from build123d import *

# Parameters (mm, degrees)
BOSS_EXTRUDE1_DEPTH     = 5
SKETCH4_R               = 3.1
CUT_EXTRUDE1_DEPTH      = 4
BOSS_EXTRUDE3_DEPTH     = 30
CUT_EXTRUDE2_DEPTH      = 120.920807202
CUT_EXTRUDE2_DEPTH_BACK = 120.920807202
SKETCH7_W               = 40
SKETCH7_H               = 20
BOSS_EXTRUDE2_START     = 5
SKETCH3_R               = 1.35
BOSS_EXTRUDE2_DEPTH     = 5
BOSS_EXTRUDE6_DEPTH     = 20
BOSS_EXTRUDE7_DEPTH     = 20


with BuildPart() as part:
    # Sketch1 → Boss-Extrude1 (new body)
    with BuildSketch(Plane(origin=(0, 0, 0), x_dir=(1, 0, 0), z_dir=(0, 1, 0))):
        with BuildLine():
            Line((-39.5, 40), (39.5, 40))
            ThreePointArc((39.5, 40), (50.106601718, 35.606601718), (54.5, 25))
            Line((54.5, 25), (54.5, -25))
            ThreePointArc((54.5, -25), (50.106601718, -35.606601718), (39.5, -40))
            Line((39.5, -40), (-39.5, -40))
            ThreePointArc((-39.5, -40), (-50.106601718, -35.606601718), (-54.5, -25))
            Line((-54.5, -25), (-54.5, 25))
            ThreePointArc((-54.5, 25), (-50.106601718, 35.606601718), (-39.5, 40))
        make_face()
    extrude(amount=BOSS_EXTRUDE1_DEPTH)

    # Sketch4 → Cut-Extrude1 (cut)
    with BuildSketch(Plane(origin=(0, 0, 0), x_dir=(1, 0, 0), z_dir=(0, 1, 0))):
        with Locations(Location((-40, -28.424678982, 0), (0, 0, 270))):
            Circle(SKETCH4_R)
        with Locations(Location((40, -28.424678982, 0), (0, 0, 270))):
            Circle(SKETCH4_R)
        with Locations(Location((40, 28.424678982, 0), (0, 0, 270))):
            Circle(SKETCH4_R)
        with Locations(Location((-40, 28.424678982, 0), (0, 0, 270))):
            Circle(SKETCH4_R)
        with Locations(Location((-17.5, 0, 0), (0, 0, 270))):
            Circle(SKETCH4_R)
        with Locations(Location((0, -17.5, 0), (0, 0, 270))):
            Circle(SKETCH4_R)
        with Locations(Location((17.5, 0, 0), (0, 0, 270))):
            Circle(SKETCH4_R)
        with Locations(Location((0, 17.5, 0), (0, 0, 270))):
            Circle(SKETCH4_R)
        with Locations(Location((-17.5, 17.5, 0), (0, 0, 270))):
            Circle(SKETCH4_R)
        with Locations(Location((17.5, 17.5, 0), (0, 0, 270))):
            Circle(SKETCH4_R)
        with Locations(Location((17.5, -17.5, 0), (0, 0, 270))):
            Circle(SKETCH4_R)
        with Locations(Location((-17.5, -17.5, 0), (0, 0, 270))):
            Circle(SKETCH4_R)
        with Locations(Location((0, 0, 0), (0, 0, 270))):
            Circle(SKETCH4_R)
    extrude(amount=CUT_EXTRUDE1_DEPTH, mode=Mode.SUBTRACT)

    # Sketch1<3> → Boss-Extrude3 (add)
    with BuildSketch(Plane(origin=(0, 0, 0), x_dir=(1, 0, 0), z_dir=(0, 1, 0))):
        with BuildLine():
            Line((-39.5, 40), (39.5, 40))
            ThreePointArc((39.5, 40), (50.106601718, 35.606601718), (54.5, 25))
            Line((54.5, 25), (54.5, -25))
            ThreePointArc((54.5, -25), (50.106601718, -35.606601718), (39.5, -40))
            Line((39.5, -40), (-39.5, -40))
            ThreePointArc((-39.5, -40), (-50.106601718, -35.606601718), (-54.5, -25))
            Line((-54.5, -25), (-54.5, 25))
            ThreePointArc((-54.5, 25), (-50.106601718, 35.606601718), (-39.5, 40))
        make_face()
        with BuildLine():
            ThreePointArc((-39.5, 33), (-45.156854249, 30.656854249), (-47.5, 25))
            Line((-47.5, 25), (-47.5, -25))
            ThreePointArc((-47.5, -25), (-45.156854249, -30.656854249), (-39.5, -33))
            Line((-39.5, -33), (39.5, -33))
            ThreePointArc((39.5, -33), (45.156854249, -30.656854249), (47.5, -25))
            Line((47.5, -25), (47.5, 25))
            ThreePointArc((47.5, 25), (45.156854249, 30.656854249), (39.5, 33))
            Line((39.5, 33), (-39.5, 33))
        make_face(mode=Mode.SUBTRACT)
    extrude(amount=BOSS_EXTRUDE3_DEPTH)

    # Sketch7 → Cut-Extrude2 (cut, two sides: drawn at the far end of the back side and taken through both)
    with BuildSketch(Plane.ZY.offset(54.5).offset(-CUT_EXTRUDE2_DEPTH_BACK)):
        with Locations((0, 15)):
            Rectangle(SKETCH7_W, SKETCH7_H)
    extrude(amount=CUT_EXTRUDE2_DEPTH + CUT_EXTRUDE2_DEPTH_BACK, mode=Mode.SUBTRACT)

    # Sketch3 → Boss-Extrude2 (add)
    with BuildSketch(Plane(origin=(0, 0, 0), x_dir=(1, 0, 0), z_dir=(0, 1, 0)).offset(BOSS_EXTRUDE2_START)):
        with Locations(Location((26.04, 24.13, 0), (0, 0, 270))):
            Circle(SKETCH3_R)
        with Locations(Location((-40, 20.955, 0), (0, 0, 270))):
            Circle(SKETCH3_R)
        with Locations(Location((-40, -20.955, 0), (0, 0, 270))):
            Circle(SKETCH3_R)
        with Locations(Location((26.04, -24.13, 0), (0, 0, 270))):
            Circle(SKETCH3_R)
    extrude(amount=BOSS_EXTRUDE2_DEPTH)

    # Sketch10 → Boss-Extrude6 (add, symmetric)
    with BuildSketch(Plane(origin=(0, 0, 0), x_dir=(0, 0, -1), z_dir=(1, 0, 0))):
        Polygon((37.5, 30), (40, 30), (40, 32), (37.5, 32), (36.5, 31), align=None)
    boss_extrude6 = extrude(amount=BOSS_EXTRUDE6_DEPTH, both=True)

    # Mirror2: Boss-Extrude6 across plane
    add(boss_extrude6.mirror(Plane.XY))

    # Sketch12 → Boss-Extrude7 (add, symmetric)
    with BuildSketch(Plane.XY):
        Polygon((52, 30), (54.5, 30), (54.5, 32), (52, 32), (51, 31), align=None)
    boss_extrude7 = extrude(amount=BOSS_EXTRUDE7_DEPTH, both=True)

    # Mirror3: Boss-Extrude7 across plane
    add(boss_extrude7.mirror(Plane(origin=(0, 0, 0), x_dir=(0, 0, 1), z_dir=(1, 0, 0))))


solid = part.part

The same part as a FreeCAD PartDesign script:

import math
import FreeCAD as App
import Part
import Sketcher
from FreeCAD import Vector


def add_polygon(sketch, points):
    """Adds a closed chain of lines whose ends are joined by coincident constraints."""
    first, n = sketch.GeometryCount, len(points)
    for a, b in zip(points, points[1:] + points[:1]):
        sketch.addGeometry(Part.LineSegment(App.Vector(*a, 0), App.Vector(*b, 0)), False)
    for i in range(n):
        sketch.addConstraint(Sketcher.Constraint("Coincident", first + i, 2, first + (i + 1) % n, 1))

doc = App.newDocument("Part")
params = doc.addObject("Spreadsheet::Sheet", "Params")
for row, (alias, value) in enumerate([
    ("sketch1_radius", "15 mm"),
    ("sketch1_width", "79 mm"),
    ("sketch1_height", "50 mm"),
    ("pad1_length", "5 mm"),
    ("sketch2_diameter", "6.2 mm"),
    ("pocket1_length", "4 mm"),
    ("sketch3_radius", "15 mm"),
    ("sketch3_radius2", "8 mm"),
    ("sketch3_width", "79 mm"),
    ("sketch3_height", "50 mm"),
    ("pad2_length", "30 mm"),
    ("sketch4_width", "20 mm"),
    ("sketch4_height", "40 mm"),
    ("sketch5_diameter", "2.7 mm"),
    ("pad3_length", "5 mm"),
    ("sketch6_width", "2 mm"),
    ("sketch6_height", "2.5 mm"),
    ("pad4_length", "40 mm"),
    ("sketch7_height", "2 mm"),
    ("sketch7_width", "2.5 mm"),
    ("pad5_length", "40 mm"),
], start=1):
    params.set(f"A{row}", alias)
    params.set(f"B{row}", "=" + value)
    params.setAlias(f"B{row}", alias)

body = doc.addObject("PartDesign::Body", "Body")

# Sketch on XZ plane
sketch1 = doc.addObject("Sketcher::SketchObject", "Sketch")
body.addObject(sketch1)
sketch1.AttachmentSupport = (doc.XZ_Plane, [""])
sketch1.MapMode = "FlatFace"
sketch1.addGeometry([
    Part.LineSegment(Vector(40, -40, 0), Vector(-40, -40, 0)),  # 0
    Part.ArcOfCircle(Part.Circle(Vector(-40, -25, 0), Vector(0, 0, 1), 15), math.radians(180), math.radians(270)),  # 1
    Part.LineSegment(Vector(-54, -25, 0), Vector(-54, 25, 0)),  # 2
    Part.ArcOfCircle(Part.Circle(Vector(-40, 25, 0), Vector(0, 0, 1), 15), math.radians(90), math.radians(180)),  # 3
    Part.LineSegment(Vector(-40, 40, 0), Vector(40, 40, 0)),  # 4
    Part.ArcOfCircle(Part.Circle(Vector(40, 25, 0), Vector(0, 0, 1), 15), math.radians(0), math.radians(90)),  # 5
    Part.LineSegment(Vector(54, 25, 0), Vector(54, -25, 0)),  # 6
    Part.ArcOfCircle(Part.Circle(Vector(40, -25, 0), Vector(0, 0, 1), 15), math.radians(-90), math.radians(0)),  # 7
], False)
sketch1.addConstraint([
    Sketcher.Constraint("Tangent", 0, 2, 1, 2),
    Sketcher.Constraint("Tangent", 1, 1, 2, 1),
    Sketcher.Constraint("Tangent", 2, 2, 3, 2),
    Sketcher.Constraint("Tangent", 3, 1, 4, 1),
    Sketcher.Constraint("Tangent", 4, 2, 5, 2),
    Sketcher.Constraint("Tangent", 5, 1, 6, 1),
    Sketcher.Constraint("Tangent", 6, 2, 7, 2),
    Sketcher.Constraint("Tangent", 7, 1, 0, 1),
    Sketcher.Constraint("Horizontal", 0),
    Sketcher.Constraint("Vertical", 2),
    Sketcher.Constraint("Horizontal", 4),
    Sketcher.Constraint("Vertical", 6),
    Sketcher.Constraint("Equal", 1, 3),
    Sketcher.Constraint("Equal", 3, 5),
    Sketcher.Constraint("Equal", 5, 7),
    Sketcher.Constraint("Symmetric", 1, 3, 5, 3, -1, 1),
    Sketcher.Constraint("Radius", 1, 15.0),
    Sketcher.Constraint("DistanceX", 0, 2, 0, 1, 79.0),
    Sketcher.Constraint("DistanceY", 2, 1, 2, 2, 50.0),
])
sketch1.setExpression("Constraints[16]", "Params.sketch1_radius")
sketch1.setExpression("Constraints[17]", "Params.sketch1_width")
sketch1.setExpression("Constraints[18]", "Params.sketch1_height")
pad1 = doc.addObject("PartDesign::Pad", "Pad")
body.addObject(pad1)
pad1.Profile = sketch1
pad1.setExpression("Length", "Params.pad1_length")
pad1.Reversed = True

# Sketch on XZ plane
sketch2 = doc.addObject("Sketcher::SketchObject", "Sketch001")
body.addObject(sketch2)
sketch2.AttachmentSupport = (doc.XZ_Plane, [""])
sketch2.MapMode = "FlatFace"
sketch2.addGeometry([
    Part.Circle(Vector(-40, 28.4, 0), Vector(0, 0, 1), 3.1),  # 0
    Part.Circle(Vector(40, 28.4, 0), Vector(0, 0, 1), 3.1),  # 1
    Part.Circle(Vector(40, -28.4, 0), Vector(0, 0, 1), 3.1),  # 2
    Part.Circle(Vector(-40, -28.4, 0), Vector(0, 0, 1), 3.1),  # 3
    Part.Circle(Vector(-17.5, 0, 0), Vector(0, 0, 1), 3.1),  # 4
    Part.Circle(Vector(0, 17.5, 0), Vector(0, 0, 1), 3.1),  # 5
    Part.Circle(Vector(17.5, 0, 0), Vector(0, 0, 1), 3.1),  # 6
    Part.Circle(Vector(0, -17.5, 0), Vector(0, 0, 1), 3.1),  # 7
    Part.Circle(Vector(-17.5, -17.5, 0), Vector(0, 0, 1), 3.1),  # 8
    Part.Circle(Vector(17.5, -17.5, 0), Vector(0, 0, 1), 3.1),  # 9
    Part.Circle(Vector(17.5, 17.5, 0), Vector(0, 0, 1), 3.1),  # 10
    Part.Circle(Vector(-17.5, 17.5, 0), Vector(0, 0, 1), 3.1),  # 11
    Part.Circle(Vector(0, 0, 0), Vector(0, 0, 1), 3.1),  # 12
], False)
sketch2.addConstraint([
    Sketcher.Constraint("Coincident", 12, 3, -1, 1),
    Sketcher.Constraint("Equal", 0, 1),
    Sketcher.Constraint("Equal", 1, 2),
    Sketcher.Constraint("Equal", 2, 3),
    Sketcher.Constraint("Equal", 3, 4),
    Sketcher.Constraint("Equal", 4, 5),
    Sketcher.Constraint("Equal", 5, 6),
    Sketcher.Constraint("Equal", 6, 7),
    Sketcher.Constraint("Equal", 7, 8),
    Sketcher.Constraint("Equal", 8, 9),
    Sketcher.Constraint("Equal", 9, 10),
    Sketcher.Constraint("Equal", 10, 11),
    Sketcher.Constraint("Equal", 11, 12),
    Sketcher.Constraint("Symmetric", 0, 3, 2, 3, -1, 1),
    Sketcher.Constraint("Symmetric", 1, 3, 3, 3, -1, 1),
    Sketcher.Constraint("Symmetric", 4, 3, 6, 3, -1, 1),
    Sketcher.Constraint("Symmetric", 5, 3, 7, 3, -1, 1),
    Sketcher.Constraint("Symmetric", 8, 3, 10, 3, -1, 1),
    Sketcher.Constraint("Symmetric", 9, 3, 11, 3, -1, 1),
    Sketcher.Constraint("Symmetric", 0, 3, 1, 3, -2),
    Sketcher.Constraint("Symmetric", 8, 3, 9, 3, -2),
    Sketcher.Constraint("PointOnObject", 4, 3, -1),
    Sketcher.Constraint("PointOnObject", 5, 3, -2),
    Sketcher.Constraint("Horizontal", 7, 3, 8, 3),
    Sketcher.Constraint("Vertical", 4, 3, 8, 3),
    Sketcher.Constraint("Diameter", 0, 6.2),
    Sketcher.Constraint("DistanceX", 0, 3, -1, 1, 40.0),
    Sketcher.Constraint("DistanceX", 4, 3, 6, 3, 35.0),
    Sketcher.Constraint("DistanceY", 7, 3, 5, 3, 35.0),
    Sketcher.Constraint("DistanceY", -1, 1, 0, 3, 28.424679),
])
sketch2.setExpression("Constraints[25]", "Params.sketch2_diameter")
pocket1 = doc.addObject("PartDesign::Pocket", "Pocket")
body.addObject(pocket1)
pocket1.Profile = sketch2
pocket1.setExpression("Length", "Params.pocket1_length")

# Sketch on XZ plane
sketch3 = doc.addObject("Sketcher::SketchObject", "Sketch002")
body.addObject(sketch3)
sketch3.AttachmentSupport = (doc.XZ_Plane, [""])
sketch3.MapMode = "FlatFace"
sketch3.addGeometry([
    Part.LineSegment(Vector(40, -40, 0), Vector(-40, -40, 0)),  # 0
    Part.ArcOfCircle(Part.Circle(Vector(-40, -25, 0), Vector(0, 0, 1), 15), math.radians(180), math.radians(270)),  # 1
    Part.LineSegment(Vector(-54, -25, 0), Vector(-54, 25, 0)),  # 2
    Part.ArcOfCircle(Part.Circle(Vector(-40, 25, 0), Vector(0, 0, 1), 15), math.radians(90), math.radians(180)),  # 3
    Part.LineSegment(Vector(-40, 40, 0), Vector(40, 40, 0)),  # 4
    Part.ArcOfCircle(Part.Circle(Vector(40, 25, 0), Vector(0, 0, 1), 15), math.radians(0), math.radians(90)),  # 5
    Part.LineSegment(Vector(54, 25, 0), Vector(54, -25, 0)),  # 6
    Part.ArcOfCircle(Part.Circle(Vector(40, -25, 0), Vector(0, 0, 1), 15), math.radians(-90), math.radians(0)),  # 7
    Part.LineSegment(Vector(-40, -33, 0), Vector(40, -33, 0)),  # 8
    Part.ArcOfCircle(Part.Circle(Vector(39, -25, 0), Vector(0, 0, 1), 8), math.radians(-90), math.radians(0)),  # 9
    Part.LineSegment(Vector(48, -25, 0), Vector(48, 25, 0)),  # 10
    Part.ArcOfCircle(Part.Circle(Vector(39, 25, 0), Vector(0, 0, 1), 8), math.radians(0), math.radians(90)),  # 11
    Part.LineSegment(Vector(40, 33, 0), Vector(-40, 33, 0)),  # 12
    Part.ArcOfCircle(Part.Circle(Vector(-39, 25, 0), Vector(0, 0, 1), 8), math.radians(90), math.radians(180)),  # 13
    Part.LineSegment(Vector(-48, 25, 0), Vector(-48, -25, 0)),  # 14
    Part.ArcOfCircle(Part.Circle(Vector(-39, -25, 0), Vector(0, 0, 1), 8), math.radians(-180), math.radians(-90)),  # 15
], False)
sketch3.addConstraint([
    Sketcher.Constraint("Tangent", 0, 2, 1, 2),
    Sketcher.Constraint("Tangent", 1, 1, 2, 1),
    Sketcher.Constraint("Tangent", 2, 2, 3, 2),
    Sketcher.Constraint("Tangent", 3, 1, 4, 1),
    Sketcher.Constraint("Tangent", 4, 2, 5, 2),
    Sketcher.Constraint("Tangent", 5, 1, 6, 1),
    Sketcher.Constraint("Tangent", 6, 2, 7, 2),
    Sketcher.Constraint("Tangent", 7, 1, 0, 1),
    Sketcher.Constraint("Tangent", 8, 2, 9, 1),
    Sketcher.Constraint("Tangent", 9, 2, 10, 1),
    Sketcher.Constraint("Tangent", 10, 2, 11, 1),
    Sketcher.Constraint("Tangent", 11, 2, 12, 1),
    Sketcher.Constraint("Tangent", 12, 2, 13, 1),
    Sketcher.Constraint("Tangent", 13, 2, 14, 1),
    Sketcher.Constraint("Tangent", 14, 2, 15, 1),
    Sketcher.Constraint("Tangent", 15, 2, 8, 1),
    Sketcher.Constraint("Horizontal", 0),
    Sketcher.Constraint("Vertical", 2),
    Sketcher.Constraint("Horizontal", 4),
    Sketcher.Constraint("Vertical", 6),
    Sketcher.Constraint("Horizontal", 8),
    Sketcher.Constraint("Vertical", 10),
    Sketcher.Constraint("Horizontal", 12),
    Sketcher.Constraint("Vertical", 14),
    Sketcher.Constraint("Coincident", 9, 3, 7, 3),
    Sketcher.Constraint("Coincident", 11, 3, 5, 3),
    Sketcher.Constraint("Coincident", 13, 3, 3, 3),
    Sketcher.Constraint("Equal", 1, 3),
    Sketcher.Constraint("Equal", 3, 5),
    Sketcher.Constraint("Equal", 5, 7),
    Sketcher.Constraint("Equal", 13, 15),
    Sketcher.Constraint("Symmetric", 1, 3, 5, 3, -1, 1),
    Sketcher.Constraint("Radius", 1, 15.0),
    Sketcher.Constraint("Radius", 9, 8.0),
    Sketcher.Constraint("DistanceX", 0, 2, 0, 1, 79.0),
    Sketcher.Constraint("DistanceY", 2, 1, 2, 2, 50.0),
])
sketch3.setExpression("Constraints[32]", "Params.sketch3_radius")
sketch3.setExpression("Constraints[33]", "Params.sketch3_radius2")
sketch3.setExpression("Constraints[34]", "Params.sketch3_width")
sketch3.setExpression("Constraints[35]", "Params.sketch3_height")
pad2 = doc.addObject("PartDesign::Pad", "Pad001")
body.addObject(pad2)
pad2.Profile = sketch3
pad2.setExpression("Length", "Params.pad2_length")
pad2.Reversed = True

# Sketch on YZ plane
sketch4 = doc.addObject("Sketcher::SketchObject", "Sketch003")
body.addObject(sketch4)
sketch4.AttachmentSupport = (doc.YZ_Plane, [""])
sketch4.MapMode = "FlatFace"
sketch4.AttachmentOffset = App.Placement(Vector(0, 0, -54.5), App.Rotation())
add_polygon(sketch4, [(25, -20), (5, -20), (5, 20), (25, 20)])  # lines 0-3
sketch4.addConstraint([
    Sketcher.Constraint("Horizontal", 0),
    Sketcher.Constraint("Vertical", 1),
    Sketcher.Constraint("Horizontal", 2),
    Sketcher.Constraint("Vertical", 3),
    Sketcher.Constraint("DistanceX", 0, 2, 0, 1, 20.0),
    Sketcher.Constraint("DistanceY", 1, 1, 1, 2, 40.0),
    Sketcher.Constraint("DistanceX", -1, 1, 0, 2, 5.0),
    Sketcher.Constraint("DistanceY", 0, 2, -1, 1, 20.0),
])
sketch4.setExpression("Constraints[8]", "Params.sketch4_width")
sketch4.setExpression("Constraints[9]", "Params.sketch4_height")
pocket2 = doc.addObject("PartDesign::Pocket", "Pocket001")
body.addObject(pocket2)
pocket2.Profile = sketch4
pocket2.Type = "ThroughAll"
pocket2.Midplane = True

# Sketch on XZ plane
sketch5 = doc.addObject("Sketcher::SketchObject", "Sketch004")
body.addObject(sketch5)
sketch5.AttachmentSupport = (doc.XZ_Plane, [""])
sketch5.MapMode = "FlatFace"
sketch5.AttachmentOffset = App.Placement(Vector(0, 0, -5), App.Rotation())
sketch5.addGeometry([
    Part.Circle(Vector(26, -24.1, 0), Vector(0, 0, 1), 1.4),
    Part.Circle(Vector(-40, -21, 0), Vector(0, 0, 1), 1.4),
    Part.Circle(Vector(-40, 21, 0), Vector(0, 0, 1), 1.4),
    Part.Circle(Vector(26, 24.1, 0), Vector(0, 0, 1), 1.4),
], False)
sketch5.addConstraint([
    Sketcher.Constraint("Equal", 0, 1),
    Sketcher.Constraint("Equal", 1, 2),
    Sketcher.Constraint("Equal", 2, 3),
    Sketcher.Constraint("Symmetric", 1, 3, 2, 3, -1),
    Sketcher.Constraint("Symmetric", 0, 3, 3, 3, -1),
    Sketcher.Constraint("Diameter", 0, 2.7),
    Sketcher.Constraint("DistanceX", 1, 3, -1, 1, 40.0),
    Sketcher.Constraint("DistanceX", -1, 1, 0, 3, 26.04),
    Sketcher.Constraint("DistanceY", 0, 3, -1, 1, 24.13),
    Sketcher.Constraint("DistanceY", 1, 3, 2, 3, 41.91),
])
sketch5.setExpression("Constraints[5]", "Params.sketch5_diameter")
pad3 = doc.addObject("PartDesign::Pad", "Pad002")
body.addObject(pad3)
pad3.Profile = sketch5
pad3.setExpression("Length", "Params.pad3_length")
pad3.Reversed = True

# Sketch on YZ plane
sketch6 = doc.addObject("Sketcher::SketchObject", "Sketch005")
body.addObject(sketch6)
sketch6.AttachmentSupport = (doc.YZ_Plane, [""])
sketch6.MapMode = "FlatFace"
add_polygon(sketch6, [(30, -37.5), (30, -40), (32, -40), (32, -37.5), (31, -36.5)])  # lines 0-4
sketch6.addConstraint([
    Sketcher.Constraint("Vertical", 0),
    Sketcher.Constraint("Horizontal", 1),
    Sketcher.Constraint("Vertical", 2),
    Sketcher.Constraint("Perpendicular", 3, 4),
    Sketcher.Constraint("Horizontal", 2, 2, 4, 2),
    Sketcher.Constraint("Equal", 3, 4),
    Sketcher.Constraint("DistanceX", 1, 1, 1, 2, 2.0),
    Sketcher.Constraint("DistanceY", 0, 2, 0, 1, 2.5),
    Sketcher.Constraint("DistanceX", -1, 1, 0, 2, 30.0),
    Sketcher.Constraint("DistanceY", 0, 2, -1, 1, 40.0),
])
sketch6.setExpression("Constraints[11]", "Params.sketch6_width")
sketch6.setExpression("Constraints[12]", "Params.sketch6_height")
pad4 = doc.addObject("PartDesign::Pad", "Pad003")
body.addObject(pad4)
pad4.Profile = sketch6
pad4.setExpression("Length", "Params.pad4_length")
pad4.Midplane = True
doc.recompute()

mirrored = doc.addObject("PartDesign::Mirrored", "Mirrored")
body.addObject(mirrored)
mirrored.Originals = [pad4]
mirrored.MirrorPlane = (doc.XY_Plane, [""])
body.Tip = mirrored

# Sketch on XY plane
sketch7 = doc.addObject("Sketcher::SketchObject", "Sketch006")
body.addObject(sketch7)
sketch7.AttachmentSupport = (doc.XY_Plane, [""])
sketch7.MapMode = "FlatFace"
add_polygon(sketch7, [(52, 30), (54.5, 30), (54.5, 32), (52, 32), (51, 31)])  # lines 0-4
sketch7.addConstraint([
    Sketcher.Constraint("Horizontal", 0),
    Sketcher.Constraint("Vertical", 1),
    Sketcher.Constraint("Horizontal", 2),
    Sketcher.Constraint("Perpendicular", 3, 4),
    Sketcher.Constraint("Vertical", 2, 2, 4, 2),
    Sketcher.Constraint("Equal", 3, 4),
    Sketcher.Constraint("DistanceY", 1, 1, 1, 2, 2.0),
    Sketcher.Constraint("DistanceX", 0, 1, 0, 2, 2.5),
    Sketcher.Constraint("DistanceY", -1, 1, 0, 2, 30.0),
    Sketcher.Constraint("DistanceX", -1, 1, 2, 2, 52.0),
])
sketch7.setExpression("Constraints[11]", "Params.sketch7_height")
sketch7.setExpression("Constraints[12]", "Params.sketch7_width")
pad5 = doc.addObject("PartDesign::Pad", "Pad004")
body.addObject(pad5)
pad5.Profile = sketch7
pad5.setExpression("Length", "Params.pad5_length")
pad5.Midplane = True
doc.recompute()

mirrored2 = doc.addObject("PartDesign::Mirrored", "Mirrored001")
body.addObject(mirrored2)
mirrored2.Originals = [pad5]
mirrored2.MirrorPlane = (doc.YZ_Plane, [""])
body.Tip = mirrored2

doc.recompute()
